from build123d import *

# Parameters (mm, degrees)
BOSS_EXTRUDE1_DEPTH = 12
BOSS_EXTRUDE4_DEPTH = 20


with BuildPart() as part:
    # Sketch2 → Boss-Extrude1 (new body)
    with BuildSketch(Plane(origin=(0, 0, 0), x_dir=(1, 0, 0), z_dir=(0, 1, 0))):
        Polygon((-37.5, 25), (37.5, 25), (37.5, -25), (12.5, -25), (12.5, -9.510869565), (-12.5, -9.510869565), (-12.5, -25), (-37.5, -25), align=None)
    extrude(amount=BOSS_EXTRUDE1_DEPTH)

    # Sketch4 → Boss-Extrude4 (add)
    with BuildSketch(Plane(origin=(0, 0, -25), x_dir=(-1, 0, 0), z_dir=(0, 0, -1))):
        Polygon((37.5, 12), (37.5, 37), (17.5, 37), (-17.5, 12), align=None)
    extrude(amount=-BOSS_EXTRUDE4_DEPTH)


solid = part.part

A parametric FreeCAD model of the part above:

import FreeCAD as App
import Part
import Sketcher

V = App.Vector

doc = App.newDocument("Part")
body = doc.addObject("PartDesign::Body", "Body")

# Sketch on XZ plane
sketch1 = body.newObject("Sketcher::SketchObject", "Sketch")
sketch1.AttachmentSupport = (doc.getObject("XZ_Plane"), [""])
sketch1.MapMode = "FlatFace"
sketch1.addGeometry([
    Part.LineSegment(V(38, -25, 0), V(-38, -25, 0)),  # 0
    Part.LineSegment(V(-38, -25, 0), V(-38, 25, 0)),  # 1
    Part.LineSegment(V(-38, 25, 0), V(-12, 25, 0)),  # 2
    Part.LineSegment(V(-12, 25, 0), V(-12, 10, 0)),  # 3
    Part.LineSegment(V(-12, 10, 0), V(12, 10, 0)),  # 4
    Part.LineSegment(V(12, 10, 0), V(12, 25, 0)),  # 5
    Part.LineSegment(V(12, 25, 0), V(38, 25, 0)),  # 6
    Part.LineSegment(V(38, 25, 0), V(38, -25, 0)),  # 7
], False)
sketch1.addConstraint([
    Sketcher.Constraint("Coincident", 0, 2, 1, 1),
    Sketcher.Constraint("Coincident", 1, 2, 2, 1),
    Sketcher.Constraint("Coincident", 2, 2, 3, 1),
    Sketcher.Constraint("Coincident", 3, 2, 4, 1),
    Sketcher.Constraint("Coincident", 4, 2, 5, 1),
    Sketcher.Constraint("Coincident", 5, 2, 6, 1),
    Sketcher.Constraint("Coincident", 6, 2, 7, 1),
    Sketcher.Constraint("Coincident", 7, 2, 0, 1),
    Sketcher.Constraint("Horizontal", 0),
    Sketcher.Constraint("Vertical", 1),
    Sketcher.Constraint("Horizontal", 2),
    Sketcher.Constraint("Vertical", 3),
    Sketcher.Constraint("Horizontal", 4),
    Sketcher.Constraint("Vertical", 5),
    Sketcher.Constraint("Horizontal", 6),
    Sketcher.Constraint("Vertical", 7),
    Sketcher.Constraint("Symmetric", 0, 2, 6, 2, -1, 1),
    Sketcher.Constraint("Symmetric", 2, 2, 5, 2, -2),
    Sketcher.Constraint("Equal", 2, 4),
    Sketcher.Constraint("DistanceX", 0, 2, 0, 1, 75.0),
    Sketcher.Constraint("DistanceY", 1, 1, 1, 2, 50.0),
    Sketcher.Constraint("DistanceY", 3, 2, 3, 1, 15.48913),
])
pad1 = body.newObject("PartDesign::Pad", "Pad")
pad1.Profile = sketch1
pad1.Length = 12
pad1.Reversed = True

# Sketch on XY plane
sketch2 = body.newObject("Sketcher::SketchObject", "Sketch001")
sketch2.AttachmentSupport = (doc.getObject("XY_Plane"), [""])
sketch2.MapMode = "FlatFace"
sketch2.AttachmentOffset = App.Placement(V(0, 0, -25), App.Rotation())
sketch2.addGeometry([
    Part.LineSegment(V(-38, 12, 0), V(-38, 37, 0)),
    Part.LineSegment(V(-38, 37, 0), V(-18, 37, 0)),
    Part.LineSegment(V(-18, 37, 0), V(18, 12, 0)),
    Part.LineSegment(V(18, 12, 0), V(-38, 12, 0)),
], False)
sketch2.addConstraint([
    Sketcher.Constraint("Coincident", 0, 2, 1, 1),
    Sketcher.Constraint("Coincident", 1, 2, 2, 1),
    Sketcher.Constraint("Coincident", 2, 2, 3, 1),
    Sketcher.Constraint("Coincident", 3, 2, 0, 1),
    Sketcher.Constraint("Vertical", 0),
    Sketcher.Constraint("Horizontal", 1),
    Sketcher.Constraint("Horizontal", 3),
    Sketcher.Constraint("DistanceX", 1, 1, 1, 2, 20.0),
    Sketcher.Constraint("DistanceX", 3, 2, 3, 1, 55.0),
    Sketcher.Constraint("DistanceY", 0, 1, 0, 2, 25.0),
    Sketcher.Constraint("DistanceY", -1, 1, 0, 2, 37.0),
    Sketcher.Constraint("DistanceX", 0, 2, -1, 1, 37.5),
])
pad2 = body.newObject("PartDesign::Pad", "Pad001")
pad2.Profile = sketch2
pad2.Length = 20

doc.recompute()
